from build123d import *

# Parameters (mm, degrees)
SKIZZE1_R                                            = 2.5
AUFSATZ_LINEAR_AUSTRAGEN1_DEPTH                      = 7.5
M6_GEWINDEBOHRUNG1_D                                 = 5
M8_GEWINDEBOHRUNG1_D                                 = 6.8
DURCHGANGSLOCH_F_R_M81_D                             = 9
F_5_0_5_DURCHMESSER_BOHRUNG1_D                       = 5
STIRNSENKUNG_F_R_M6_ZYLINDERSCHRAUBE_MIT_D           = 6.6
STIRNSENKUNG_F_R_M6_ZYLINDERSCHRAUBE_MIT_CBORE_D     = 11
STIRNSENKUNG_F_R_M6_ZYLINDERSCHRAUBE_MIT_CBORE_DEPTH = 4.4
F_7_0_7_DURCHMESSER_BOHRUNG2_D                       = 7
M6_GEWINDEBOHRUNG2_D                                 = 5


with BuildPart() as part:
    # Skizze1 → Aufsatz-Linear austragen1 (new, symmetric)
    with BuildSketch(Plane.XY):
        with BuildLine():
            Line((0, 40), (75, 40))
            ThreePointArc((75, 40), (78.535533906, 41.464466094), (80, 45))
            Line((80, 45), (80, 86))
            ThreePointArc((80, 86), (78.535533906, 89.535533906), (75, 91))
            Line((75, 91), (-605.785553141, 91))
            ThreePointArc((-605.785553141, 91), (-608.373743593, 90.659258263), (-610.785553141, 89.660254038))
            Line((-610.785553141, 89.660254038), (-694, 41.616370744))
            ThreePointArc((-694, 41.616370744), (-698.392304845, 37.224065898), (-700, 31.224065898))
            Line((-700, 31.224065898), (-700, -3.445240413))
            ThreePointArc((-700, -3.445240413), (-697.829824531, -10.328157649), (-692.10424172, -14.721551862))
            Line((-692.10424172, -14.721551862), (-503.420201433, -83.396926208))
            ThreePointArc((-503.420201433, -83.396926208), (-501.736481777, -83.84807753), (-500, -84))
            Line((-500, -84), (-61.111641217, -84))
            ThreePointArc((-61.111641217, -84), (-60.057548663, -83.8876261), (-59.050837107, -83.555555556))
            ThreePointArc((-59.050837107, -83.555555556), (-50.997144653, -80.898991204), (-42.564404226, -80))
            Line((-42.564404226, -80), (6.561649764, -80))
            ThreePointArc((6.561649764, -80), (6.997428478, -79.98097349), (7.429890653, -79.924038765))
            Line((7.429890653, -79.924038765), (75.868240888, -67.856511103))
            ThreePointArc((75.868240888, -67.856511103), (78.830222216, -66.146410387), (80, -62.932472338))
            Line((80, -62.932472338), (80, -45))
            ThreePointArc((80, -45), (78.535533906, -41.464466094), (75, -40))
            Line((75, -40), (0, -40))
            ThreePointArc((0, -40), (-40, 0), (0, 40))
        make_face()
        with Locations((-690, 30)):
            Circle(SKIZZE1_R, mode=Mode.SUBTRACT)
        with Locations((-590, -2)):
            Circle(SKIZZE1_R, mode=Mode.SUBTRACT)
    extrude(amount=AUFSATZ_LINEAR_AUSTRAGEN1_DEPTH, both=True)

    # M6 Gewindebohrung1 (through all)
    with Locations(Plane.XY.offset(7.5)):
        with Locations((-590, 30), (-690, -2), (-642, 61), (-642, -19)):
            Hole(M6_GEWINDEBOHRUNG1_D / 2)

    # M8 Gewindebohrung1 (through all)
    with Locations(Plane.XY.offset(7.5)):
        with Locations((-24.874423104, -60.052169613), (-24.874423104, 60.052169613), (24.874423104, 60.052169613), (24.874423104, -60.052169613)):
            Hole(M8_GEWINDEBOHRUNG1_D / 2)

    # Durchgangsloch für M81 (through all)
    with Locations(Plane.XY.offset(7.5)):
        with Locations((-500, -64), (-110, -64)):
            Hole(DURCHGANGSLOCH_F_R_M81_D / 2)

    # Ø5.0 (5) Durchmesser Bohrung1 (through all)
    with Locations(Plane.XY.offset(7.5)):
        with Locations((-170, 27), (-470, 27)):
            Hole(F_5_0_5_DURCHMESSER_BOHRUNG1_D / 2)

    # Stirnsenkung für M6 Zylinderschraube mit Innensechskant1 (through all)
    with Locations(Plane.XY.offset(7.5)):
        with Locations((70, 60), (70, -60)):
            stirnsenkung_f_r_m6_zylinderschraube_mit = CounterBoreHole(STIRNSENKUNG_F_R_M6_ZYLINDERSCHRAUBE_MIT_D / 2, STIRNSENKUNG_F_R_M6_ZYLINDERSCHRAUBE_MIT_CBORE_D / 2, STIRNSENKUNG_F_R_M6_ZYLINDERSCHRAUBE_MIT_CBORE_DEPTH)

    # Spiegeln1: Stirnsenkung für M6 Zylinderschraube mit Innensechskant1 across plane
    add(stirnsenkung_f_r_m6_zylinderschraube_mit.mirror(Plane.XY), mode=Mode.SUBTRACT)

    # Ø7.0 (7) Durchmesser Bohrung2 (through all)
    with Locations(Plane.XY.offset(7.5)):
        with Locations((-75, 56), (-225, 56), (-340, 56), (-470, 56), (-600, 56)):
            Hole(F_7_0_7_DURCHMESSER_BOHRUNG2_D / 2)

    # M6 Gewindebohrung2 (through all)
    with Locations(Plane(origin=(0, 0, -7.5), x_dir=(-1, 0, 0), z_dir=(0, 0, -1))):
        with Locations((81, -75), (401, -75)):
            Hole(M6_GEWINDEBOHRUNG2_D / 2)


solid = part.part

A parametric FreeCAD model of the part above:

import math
import FreeCAD as App
import Part
import Sketcher
from FreeCAD import Vector
Q = App.Units.Quantity

doc = App.newDocument("Part")
body = doc.addObject("PartDesign::Body", "Body")

sketch1 = body.newObject("Sketcher::SketchObject", "Sketch")
sketch1.AttachmentSupport = (doc.getObject("XY_Plane"), [""])
sketch1.MapMode = "FlatFace"
sketch1.addGeometry([
    Part.LineSegment(Vector(0, 40, 0), Vector(75, 40, 0)),
    Part.ArcOfCircle(Part.Circle(Vector(75, 45, 0), Vector(0, 0, 1), 5), math.radians(-90), math.radians(0)),
    Part.LineSegment(Vector(80, 45, 0), Vector(80, 86, 0)),
    Part.ArcOfCircle(Part.Circle(Vector(75, 86, 0), Vector(0, 0, 1), 5), math.radians(0), math.radians(90)),
    Part.LineSegment(Vector(75, 91, 0), Vector(-605.8, 91, 0)),
    Part.ArcOfCircle(Part.Circle(Vector(-605.8, 81, 0), Vector(0, 0, 1), 10), math.radians(90), math.radians(120)),
    Part.LineSegment(Vector(-610.8, 89.7, 0), Vector(-694, 41.6, 0)),
    Part.ArcOfCircle(Part.Circle(Vector(-688, 31.2, 0), Vector(0, 0, 1), 12), math.radians(120), math.radians(180)),
    Part.LineSegment(Vector(-700, 31.2, 0), Vector(-700, -3.4, 0)),
    Part.ArcOfCircle(Part.Circle(Vector(-688, -3.4, 0), Vector(0, 0, 1), 12), math.radians(-180), math.radians(-110)),
    Part.LineSegment(Vector(-692.1, -14.7, 0), Vector(-503.4, -83.4, 0)),
    Part.ArcOfCircle(Part.Circle(Vector(-500, -74, 0), Vector(0, 0, 1), 10), math.radians(-110), math.radians(-90)),
    Part.LineSegment(Vector(-500, -84, 0), Vector(-61.1, -84, 0)),
    Part.ArcOfCircle(Part.Circle(Vector(-61.1, -79, 0), Vector(0, 0, 1), 5), math.radians(-90), math.radians(-66)),
    Part.ArcOfCircle(Part.Circle(Vector(-42.6, -120, 0), Vector(0, 0, 1), 40), math.radians(90), math.radians(114)),
    Part.LineSegment(Vector(-42.6, -80, 0), Vector(6.6, -80, 0)),
    Part.ArcOfCircle(Part.Circle(Vector(6.6, -75, 0), Vector(0, 0, 1), 5), math.radians(-90), math.radians(-80)),
    Part.LineSegment(Vector(7.4, -79.9, 0), Vector(75.9, -67.9, 0)),
    Part.ArcOfCircle(Part.Circle(Vector(75, -62.9, 0), Vector(0, 0, 1), 5), math.radians(-80), math.radians(0)),
    Part.LineSegment(Vector(80, -62.9, 0), Vector(80, -45, 0)),
    Part.ArcOfCircle(Part.Circle(Vector(75, -45, 0), Vector(0, 0, 1), 5), math.radians(0), math.radians(90)),
    Part.LineSegment(Vector(75, -40, 0), Vector(0, -40, 0)),
    Part.ArcOfCircle(Part.Circle(Vector(0, 0, 0), Vector(0, 0, 1), 40), math.radians(90), math.radians(270)),
    Part.Circle(Vector(-590, -2, 0), Vector(0, 0, 1), 2.5),
    Part.Circle(Vector(-690, 30, 0), Vector(0, 0, 1), 2.5),
], False)
sketch1.addConstraint([
    Sketcher.Constraint("Tangent", 0, 2, 1, 1),
    Sketcher.Constraint("Tangent", 1, 2, 2, 1),
    Sketcher.Constraint("Tangent", 2, 2, 3, 1),
    Sketcher.Constraint("Tangent", 3, 2, 4, 1),
    Sketcher.Constraint("Tangent", 4, 2, 5, 1),
    Sketcher.Constraint("Tangent", 5, 2, 6, 1),
    Sketcher.Constraint("Tangent", 6, 2, 7, 1),
    Sketcher.Constraint("Tangent", 7, 2, 8, 1),
    Sketcher.Constraint("Tangent", 8, 2, 9, 1),
    Sketcher.Constraint("Tangent", 9, 2, 10, 1),
    Sketcher.Constraint("Tangent", 10, 2, 11, 1),
    Sketcher.Constraint("Tangent", 11, 2, 12, 1),
    Sketcher.Constraint("Tangent", 12, 2, 13, 1),
    Sketcher.Constraint("Tangent", 13, 2, 14, 2),
    Sketcher.Constraint("Tangent", 14, 1, 15, 1),
    Sketcher.Constraint("Tangent", 15, 2, 16, 1),
    Sketcher.Constraint("Tangent", 16, 2, 17, 1),
    Sketcher.Constraint("Tangent", 17, 2, 18, 1),
    Sketcher.Constraint("Tangent", 18, 2, 19, 1),
    Sketcher.Constraint("Tangent", 19, 2, 20, 1),
    Sketcher.Constraint("Tangent", 20, 2, 21, 1),
    Sketcher.Constraint("Tangent", 21, 2, 22, 2),
    Sketcher.Constraint("Tangent", 22, 1, 0, 1),
    Sketcher.Constraint("Horizontal", 0),
    Sketcher.Constraint("Vertical", 2),
    Sketcher.Constraint("Horizontal", 4),
    Sketcher.Constraint("Vertical", 8),
    Sketcher.Constraint("Horizontal", 12),
    Sketcher.Constraint("Horizontal", 15),
    Sketcher.Constraint("Vertical", 19),
    Sketcher.Constraint("Horizontal", 21),
    Sketcher.Constraint("Coincident", 22, 3, -1, 1),
    Sketcher.Constraint("Equal", 1, 3),
    Sketcher.Constraint("Equal", 7, 9),
    Sketcher.Constraint("Equal", 5, 11),
    Sketcher.Constraint("Equal", 3, 13),
    Sketcher.Constraint("Equal", 13, 16),
    Sketcher.Constraint("Equal", 16, 18),
    Sketcher.Constraint("Equal", 18, 20),
    Sketcher.Constraint("Equal", 14, 22),
    Sketcher.Constraint("Equal", 23, 24),
    Sketcher.Constraint("Vertical", 3, 3, 18, 3),
    Sketcher.Constraint("Diameter", 23, 5.0),
    Sketcher.Constraint("Radius", 1, 5.0),
    Sketcher.Constraint("Radius", 5, 10.0),
    Sketcher.Constraint("Radius", 7, 12.0),
    Sketcher.Constraint("Radius", 14, 40.0),
    Sketcher.Constraint("DistanceX", 0, 1, 0, 2, 75.0),
    Sketcher.Constraint("DistanceY", 2, 1, 2, 2, 41.0),
    Sketcher.Constraint("Angle", 6, Q("-150 deg")),
    Sketcher.Constraint("Angle", 10, Q("-20 deg")),
    Sketcher.Constraint("Angle", 17, Q("10 deg")),
    Sketcher.Constraint("DistanceX", 7, 3, -1, 1, 688.0),
    Sketcher.Constraint("DistanceX", 11, 3, -1, 1, 500.0),
    Sketcher.Constraint("DistanceY", 11, 3, -1, 1, 74.0),
    Sketcher.Constraint("DistanceY", 14, 3, -1, 1, 120.0),
    Sketcher.Constraint("DistanceX", 23, 3, -1, 1, 590.0),
    Sketcher.Constraint("DistanceY", 23, 3, -1, 1, 2.0),
    Sketcher.Constraint("DistanceX", 24, 3, -1, 1, 690.0),
    Sketcher.Constraint("DistanceY", -1, 1, 24, 3, 30.0),
    Sketcher.Constraint("DistanceX", 12, 1, 12, 2, 438.888359),
    Sketcher.Constraint("DistanceX", 4, 2, 4, 1, 680.785553),
    Sketcher.Constraint("DistanceX", 15, 1, 15, 2, 49.126054),
])
pad1 = body.newObject("PartDesign::Pad", "Pad")
pad1.Profile = sketch1
pad1.Length = 15
pad1.Midplane = True

sketch2 = body.newObject("Sketcher::SketchObject", "Sketch001")
sketch2.AttachmentSupport = (doc.getObject("XY_Plane"), [""])
sketch2.MapMode = "FlatFace"
sketch2.AttachmentOffset = App.Placement(Vector(0, 0, 7.5), App.Rotation())
sketch2.addGeometry([
    Part.Circle(Vector(-590, 30, 0), Vector(0, 0, 1), 2.5),
    Part.Circle(Vector(-690, -2, 0), Vector(0, 0, 1), 2.5),
    Part.Circle(Vector(-642, 61, 0), Vector(0, 0, 1), 2.5),
    Part.Circle(Vector(-642, -19, 0), Vector(0, 0, 1), 2.5),
], False)
sketch2.addConstraint([
    Sketcher.Constraint("Equal", 0, 1),
    Sketcher.Constraint("Equal", 1, 2),
    Sketcher.Constraint("Equal", 2, 3),
    Sketcher.Constraint("Vertical", 2, 3, 3, 3),
    Sketcher.Constraint("Diameter", 0, 5.0),
    Sketcher.Constraint("DistanceX", 0, 3, -1, 1, 590.0),
    Sketcher.Constraint("DistanceY", -1, 1, 0, 3, 30.0),
    Sketcher.Constraint("DistanceX", 1, 3, -1, 1, 690.0),
    Sketcher.Constraint("DistanceY", 1, 3, -1, 1, 2.0),
    Sketcher.Constraint("DistanceX", 2, 3, -1, 1, 642.0),
    Sketcher.Constraint("DistanceY", -1, 1, 2, 3, 61.0),
    Sketcher.Constraint("DistanceY", 3, 3, -1, 1, 19.0),
])
doc.recompute()
hole = body.newObject("PartDesign::Hole", "Hole")
hole.Profile = sketch2
hole.ThreadType = "None"
hole.Diameter = 5
hole.DepthType = "ThroughAll"

sketch3 = body.newObject("Sketcher::SketchObject", "Sketch002")
sketch3.AttachmentSupport = (doc.getObject("XY_Plane"), [""])
sketch3.MapMode = "FlatFace"
sketch3.AttachmentOffset = App.Placement(Vector(0, 0, 7.5), App.Rotation())
sketch3.addGeometry([
    Part.Circle(Vector(-24.9, -60.1, 0), Vector(0, 0, 1), 3.4),
    Part.Circle(Vector(-24.9, 60.1, 0), Vector(0, 0, 1), 3.4),
    Part.Circle(Vector(24.9, 60.1, 0), Vector(0, 0, 1), 3.4),
    Part.Circle(Vector(24.9, -60.1, 0), Vector(0, 0, 1), 3.4),
], False)
sketch3.addConstraint([
    Sketcher.Constraint("Equal", 0, 1),
    Sketcher.Constraint("Equal", 1, 2),
    Sketcher.Constraint("Equal", 2, 3),
    Sketcher.Constraint("Symmetric", 0, 3, 2, 3, -1, 1),
    Sketcher.Constraint("Symmetric", 1, 3, 3, 3, -1, 1),
    Sketcher.Constraint("Symmetric", 1, 3, 2, 3, -2),
    Sketcher.Constraint("Diameter", 0, 6.8),
    Sketcher.Constraint("DistanceY", 0, 3, -1, 1, 60.05217),
    Sketcher.Constraint("DistanceX", 0, 3, -1, 1, 24.874423),
])
doc.recompute()
hole2 = body.newObject("PartDesign::Hole", "Hole001")
hole2.Profile = sketch3
hole2.ThreadType = "None"
hole2.Diameter = 6.8
hole2.DepthType = "ThroughAll"

sketch4 = body.newObject("Sketcher::SketchObject", "Sketch003")
sketch4.AttachmentSupport = (doc.getObject("XY_Plane"), [""])
sketch4.MapMode = "FlatFace"
sketch4.AttachmentOffset = App.Placement(Vector(0, 0, 7.5), App.Rotation())
sketch4.addGeometry([
    Part.Circle(Vector(-500, -64, 0), Vector(0, 0, 1), 4.5),
    Part.Circle(Vector(-110, -64, 0), Vector(0, 0, 1), 4.5),
], False)
sketch4.addConstraint([
    Sketcher.Constraint("Equal", 0, 1),
    Sketcher.Constraint("Horizontal", 0, 3, 1, 3),
    Sketcher.Constraint("Diameter", 0, 9.0),
    Sketcher.Constraint("DistanceX", 0, 3, -1, 1, 500.0),
    Sketcher.Constraint("DistanceY", 0, 3, -1, 1, 64.0),
    Sketcher.Constraint("DistanceX", 1, 3, -1, 1, 110.0),
])
doc.recompute()
hole3 = body.newObject("PartDesign::Hole", "Hole002")
hole3.Profile = sketch4
hole3.ThreadType = "None"
hole3.Diameter = 9
hole3.DepthType = "ThroughAll"

sketch5 = body.newObject("Sketcher::SketchObject", "Sketch004")
sketch5.AttachmentSupport = (doc.getObject("XY_Plane"), [""])
sketch5.MapMode = "FlatFace"
sketch5.AttachmentOffset = App.Placement(Vector(0, 0, 7.5), App.Rotation())
sketch5.addGeometry([
    Part.Circle(Vector(-170, 27, 0), Vector(0, 0, 1), 2.5),
    Part.Circle(Vector(-470, 27, 0), Vector(0, 0, 1), 2.5),
], False)
sketch5.addConstraint([
    Sketcher.Constraint("Equal", 0, 1),
    Sketcher.Constraint("Horizontal", 0, 3, 1, 3),
    Sketcher.Constraint("Diameter", 0, 5.0),
    Sketcher.Constraint("DistanceX", 0, 3, -1, 1, 170.0),
    Sketcher.Constraint("DistanceY", -1, 1, 0, 3, 27.0),
    Sketcher.Constraint("DistanceX", 1, 3, -1, 1, 470.0),
])
doc.recompute()
hole4 = body.newObject("PartDesign::Hole", "Hole003")
hole4.Profile = sketch5
hole4.ThreadType = "None"
hole4.Diameter = 5
hole4.DepthType = "ThroughAll"

sketch6 = body.newObject("Sketcher::SketchObject", "Sketch005")
sketch6.AttachmentSupport = (doc.getObject("XY_Plane"), [""])
sketch6.MapMode = "FlatFace"
sketch6.AttachmentOffset = App.Placement(Vector(0, 0, 7.5), App.Rotation())
sketch6.addGeometry([
    Part.Circle(Vector(70, 60, 0), Vector(0, 0, 1), 3.3),
    Part.Circle(Vector(70, -60, 0), Vector(0, 0, 1), 3.3),
], False)
sketch6.addConstraint([
    Sketcher.Constraint("Equal", 0, 1),
    Sketcher.Constraint("Symmetric", 0, 3, 1, 3, -1),
    Sketcher.Constraint("Diameter", 0, 6.6),
    Sketcher.Constraint("DistanceX", -1, 1, 0, 3, 70.0),
    Sketcher.Constraint("DistanceY", -1, 1, 0, 3, 60.0),
])
doc.recompute()
hole5 = body.newObject("PartDesign::Hole", "Hole004")
hole5.Profile = sketch6
hole5.ThreadType = "None"
hole5.Diameter = 6.6
hole5.DepthType = "ThroughAll"
hole5.HoleCutType = "Counterbore"
hole5.HoleCutDiameter = 11
hole5.HoleCutDepth = 4.4
doc.recompute()

mirrored = body.newObject("PartDesign::Mirrored", "Mirrored")
mirrored.Originals = [hole5]
mirrored.MirrorPlane = (doc.getObject("XY_Plane"), [""])
body.Tip = mirrored

sketch7 = body.newObject("Sketcher::SketchObject", "Sketch006")
sketch7.AttachmentSupport = (doc.getObject("XY_Plane"), [""])
sketch7.MapMode = "FlatFace"
sketch7.AttachmentOffset = App.Placement(Vector(0, 0, 7.5), App.Rotation())
sketch7.addGeometry([
    Part.Circle(Vector(-75, 56, 0), Vector(0, 0, 1), 3.5),
    Part.Circle(Vector(-225, 56, 0), Vector(0, 0, 1), 3.5),
    Part.Circle(Vector(-340, 56, 0), Vector(0, 0, 1), 3.5),
    Part.Circle(Vector(-470, 56, 0), Vector(0, 0, 1), 3.5),
    Part.Circle(Vector(-600, 56, 0), Vector(0, 0, 1), 3.5),
], False)
sketch7.addConstraint([
    Sketcher.Constraint("Equal", 0, 1),
    Sketcher.Constraint("Equal", 1, 2),
    Sketcher.Constraint("Equal", 2, 3),
    Sketcher.Constraint("Equal", 3, 4),
    Sketcher.Constraint("Horizontal", 0, 3, 1, 3),
    Sketcher.Constraint("Horizontal", 1, 3, 2, 3),
    Sketcher.Constraint("Horizontal", 2, 3, 3, 3),
    Sketcher.Constraint("Horizontal", 3, 3, 4, 3),
    Sketcher.Constraint("Diameter", 0, 7.0),
    Sketcher.Constraint("DistanceX", 0, 3, -1, 1, 75.0),
    Sketcher.Constraint("DistanceY", -1, 1, 0, 3, 56.0),
    Sketcher.Constraint("DistanceX", 1, 3, -1, 1, 225.0),
    Sketcher.Constraint("DistanceX", 2, 3, -1, 1, 340.0),
    Sketcher.Constraint("DistanceX", 3, 3, -1, 1, 470.0),
    Sketcher.Constraint("DistanceX", 4, 3, -1, 1, 600.0),
])
doc.recompute()
hole6 = body.newObject("PartDesign::Hole", "Hole005")
hole6.Profile = sketch7
hole6.ThreadType = "None"
hole6.Diameter = 7
hole6.DepthType = "ThroughAll"

sketch8 = body.newObject("Sketcher::SketchObject", "Sketch007")
sketch8.AttachmentSupport = (doc.getObject("XY_Plane"), [""])
sketch8.MapMode = "FlatFace"
sketch8.AttachmentOffset = App.Placement(Vector(0, 0, -7.5), App.Rotation())
sketch8.addGeometry([
    Part.Circle(Vector(-81, -75, 0), Vector(0, 0, 1), 2.5),
    Part.Circle(Vector(-401, -75, 0), Vector(0, 0, 1), 2.5),
], False)
sketch8.addConstraint([
    Sketcher.Constraint("Equal", 0, 1),
    Sketcher.Constraint("Horizontal", 0, 3, 1, 3),
    Sketcher.Constraint("Diameter", 0, 5.0),
    Sketcher.Constraint("DistanceX", 0, 3, -1, 1, 81.0),
    Sketcher.Constraint("DistanceY", 0, 3, -1, 1, 75.0),
    Sketcher.Constraint("DistanceX", 1, 3, -1, 1, 401.0),
])
doc.recompute()
hole7 = body.newObject("PartDesign::Hole", "Hole006")
hole7.Profile = sketch8
hole7.ThreadType = "None"
hole7.Diameter = 5
hole7.DepthType = "ThroughAll"
hole7.Reversed = True

doc.recompute()
